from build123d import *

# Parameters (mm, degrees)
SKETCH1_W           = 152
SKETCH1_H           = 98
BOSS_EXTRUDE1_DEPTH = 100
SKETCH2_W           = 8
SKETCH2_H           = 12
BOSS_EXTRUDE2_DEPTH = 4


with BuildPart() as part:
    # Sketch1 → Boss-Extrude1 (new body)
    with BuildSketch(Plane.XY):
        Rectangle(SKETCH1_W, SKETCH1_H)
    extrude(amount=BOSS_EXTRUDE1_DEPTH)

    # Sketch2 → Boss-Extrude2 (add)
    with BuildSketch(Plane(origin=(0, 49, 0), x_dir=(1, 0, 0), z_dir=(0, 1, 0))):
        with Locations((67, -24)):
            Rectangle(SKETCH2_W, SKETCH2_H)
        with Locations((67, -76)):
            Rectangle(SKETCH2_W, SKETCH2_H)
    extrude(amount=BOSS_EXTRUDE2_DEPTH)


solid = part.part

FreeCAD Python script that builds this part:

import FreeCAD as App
import Part
import Sketcher
from FreeCAD import Vector

doc = App.newDocument("Part")
params = doc.addObject("Spreadsheet::Sheet", "Params")
for row, (alias, value) in enumerate([
    ("sketch1_width", "152 mm"),
    ("sketch1_height", "98 mm"),
    ("pad1_length", "100 mm"),
    ("sketch2_width", "8 mm"),
    ("sketch2_height", "12 mm"),
    ("pad2_length", "4 mm"),
], start=1):
    params.set(f"A{row}", alias)
    params.set(f"B{row}", "=" + value)
    params.setAlias(f"B{row}", alias)

body = doc.addObject("PartDesign::Body", "Body")

# Sketch on XY plane
sketch1 = doc.addObject("Sketcher::SketchObject", "Sketch")
body.addObject(sketch1)
sketch1.AttachmentSupport = (doc.XY_Plane, [""])
sketch1.MapMode = "FlatFace"
sketch1.addGeometry([
    Part.LineSegment(Vector(-76, 49, 0), Vector(-76, -49, 0)),
    Part.LineSegment(Vector(-76, -49, 0), Vector(76, -49, 0)),
    Part.LineSegment(Vector(76, -49, 0), Vector(76, 49, 0)),
    Part.LineSegment(Vector(76, 49, 0), Vector(-76, 49, 0)),
], False)
sketch1.addConstraint([
    Sketcher.Constraint("Coincident", 0, 2, 1, 1),
    Sketcher.Constraint("Coincident", 1, 2, 2, 1),
    Sketcher.Constraint("Coincident", 2, 2, 3, 1),
    Sketcher.Constraint("Coincident", 3, 2, 0, 1),
    Sketcher.Constraint("Vertical", 0),
    Sketcher.Constraint("Horizontal", 1),
    Sketcher.Constraint("Vertical", 2),
    Sketcher.Constraint("Horizontal", 3),
    Sketcher.Constraint("Symmetric", 0, 2, 2, 2, -1, 1),
    Sketcher.Constraint("DistanceX", 1, 1, 1, 2, 152.0),
    Sketcher.Constraint("DistanceY", 0, 2, 0, 1, 98.0),
])
sketch1.setExpression("Constraints[9]", "Params.sketch1_width")
sketch1.setExpression("Constraints[10]", "Params.sketch1_height")
pad1 = doc.addObject("PartDesign::Pad", "Pad")
body.addObject(pad1)
pad1.Profile = sketch1
pad1.setExpression("Length", "Params.pad1_length")

# Sketch on XZ plane
sketch2 = doc.addObject("Sketcher::SketchObject", "Sketch001")
body.addObject(sketch2)
sketch2.AttachmentSupport = (doc.XZ_Plane, [""])
sketch2.MapMode = "FlatFace"
sketch2.AttachmentOffset = App.Placement(Vector(0, 0, -49), App.Rotation())
sketch2.addGeometry([
    Part.LineSegment(Vector(63, 18, 0), Vector(63, 30, 0)),  # 0
    Part.LineSegment(Vector(63, 30, 0), Vector(71, 30, 0)),  # 1
    Part.LineSegment(Vector(71, 30, 0), Vector(71, 18, 0)),  # 2
    Part.LineSegment(Vector(71, 18, 0), Vector(63, 18, 0)),  # 3
    Part.LineSegment(Vector(63, 70, 0), Vector(63, 82, 0)),  # 4
    Part.LineSegment(Vector(63, 82, 0), Vector(71, 82, 0)),  # 5
    Part.LineSegment(Vector(71, 82, 0), Vector(71, 70, 0)),  # 6
    Part.LineSegment(Vector(71, 70, 0), Vector(63, 70, 0)),  # 7
], False)
sketch2.addConstraint([
    Sketcher.Constraint("Coincident", 0, 2, 1, 1),
    Sketcher.Constraint("Coincident", 1, 2, 2, 1),
    Sketcher.Constraint("Coincident", 2, 2, 3, 1),
    Sketcher.Constraint("Coincident", 3, 2, 0, 1),
    Sketcher.Constraint("Coincident", 4, 2, 5, 1),
    Sketcher.Constraint("Coincident", 5, 2, 6, 1),
    Sketcher.Constraint("Coincident", 6, 2, 7, 1),
    Sketcher.Constraint("Coincident", 7, 2, 4, 1),
    Sketcher.Constraint("Vertical", 0),
    Sketcher.Constraint("Horizontal", 1),
    Sketcher.Constraint("Vertical", 2),
    Sketcher.Constraint("Horizontal", 3),
    Sketcher.Constraint("Vertical", 4),
    Sketcher.Constraint("Horizontal", 5),
    Sketcher.Constraint("Vertical", 6),
    Sketcher.Constraint("Horizontal", 7),
    Sketcher.Constraint("Vertical", 3, 2, 4, 2),
    Sketcher.Constraint("Vertical", 2, 2, 5, 2),
    Sketcher.Constraint("Equal", 2, 4),
    Sketcher.Constraint("DistanceX", 1, 1, 1, 2, 8.0),
    Sketcher.Constraint("DistanceY", 0, 1, 0, 2, 12.0),
    Sketcher.Constraint("DistanceX", -1, 1, 0, 2, 63.0),
    Sketcher.Constraint("DistanceY", -1, 1, 0, 2, 30.0),
    Sketcher.Constraint("DistanceY", -1, 1, 4, 2, 82.0),
])
sketch2.setExpression("Constraints[19]", "Params.sketch2_width")
sketch2.setExpression("Constraints[20]", "Params.sketch2_height")
pad2 = doc.addObject("PartDesign::Pad", "Pad001")
body.addObject(pad2)
pad2.Profile = sketch2
pad2.setExpression("Length", "Params.pad2_length")
pad2.Reversed = True

doc.recompute()
